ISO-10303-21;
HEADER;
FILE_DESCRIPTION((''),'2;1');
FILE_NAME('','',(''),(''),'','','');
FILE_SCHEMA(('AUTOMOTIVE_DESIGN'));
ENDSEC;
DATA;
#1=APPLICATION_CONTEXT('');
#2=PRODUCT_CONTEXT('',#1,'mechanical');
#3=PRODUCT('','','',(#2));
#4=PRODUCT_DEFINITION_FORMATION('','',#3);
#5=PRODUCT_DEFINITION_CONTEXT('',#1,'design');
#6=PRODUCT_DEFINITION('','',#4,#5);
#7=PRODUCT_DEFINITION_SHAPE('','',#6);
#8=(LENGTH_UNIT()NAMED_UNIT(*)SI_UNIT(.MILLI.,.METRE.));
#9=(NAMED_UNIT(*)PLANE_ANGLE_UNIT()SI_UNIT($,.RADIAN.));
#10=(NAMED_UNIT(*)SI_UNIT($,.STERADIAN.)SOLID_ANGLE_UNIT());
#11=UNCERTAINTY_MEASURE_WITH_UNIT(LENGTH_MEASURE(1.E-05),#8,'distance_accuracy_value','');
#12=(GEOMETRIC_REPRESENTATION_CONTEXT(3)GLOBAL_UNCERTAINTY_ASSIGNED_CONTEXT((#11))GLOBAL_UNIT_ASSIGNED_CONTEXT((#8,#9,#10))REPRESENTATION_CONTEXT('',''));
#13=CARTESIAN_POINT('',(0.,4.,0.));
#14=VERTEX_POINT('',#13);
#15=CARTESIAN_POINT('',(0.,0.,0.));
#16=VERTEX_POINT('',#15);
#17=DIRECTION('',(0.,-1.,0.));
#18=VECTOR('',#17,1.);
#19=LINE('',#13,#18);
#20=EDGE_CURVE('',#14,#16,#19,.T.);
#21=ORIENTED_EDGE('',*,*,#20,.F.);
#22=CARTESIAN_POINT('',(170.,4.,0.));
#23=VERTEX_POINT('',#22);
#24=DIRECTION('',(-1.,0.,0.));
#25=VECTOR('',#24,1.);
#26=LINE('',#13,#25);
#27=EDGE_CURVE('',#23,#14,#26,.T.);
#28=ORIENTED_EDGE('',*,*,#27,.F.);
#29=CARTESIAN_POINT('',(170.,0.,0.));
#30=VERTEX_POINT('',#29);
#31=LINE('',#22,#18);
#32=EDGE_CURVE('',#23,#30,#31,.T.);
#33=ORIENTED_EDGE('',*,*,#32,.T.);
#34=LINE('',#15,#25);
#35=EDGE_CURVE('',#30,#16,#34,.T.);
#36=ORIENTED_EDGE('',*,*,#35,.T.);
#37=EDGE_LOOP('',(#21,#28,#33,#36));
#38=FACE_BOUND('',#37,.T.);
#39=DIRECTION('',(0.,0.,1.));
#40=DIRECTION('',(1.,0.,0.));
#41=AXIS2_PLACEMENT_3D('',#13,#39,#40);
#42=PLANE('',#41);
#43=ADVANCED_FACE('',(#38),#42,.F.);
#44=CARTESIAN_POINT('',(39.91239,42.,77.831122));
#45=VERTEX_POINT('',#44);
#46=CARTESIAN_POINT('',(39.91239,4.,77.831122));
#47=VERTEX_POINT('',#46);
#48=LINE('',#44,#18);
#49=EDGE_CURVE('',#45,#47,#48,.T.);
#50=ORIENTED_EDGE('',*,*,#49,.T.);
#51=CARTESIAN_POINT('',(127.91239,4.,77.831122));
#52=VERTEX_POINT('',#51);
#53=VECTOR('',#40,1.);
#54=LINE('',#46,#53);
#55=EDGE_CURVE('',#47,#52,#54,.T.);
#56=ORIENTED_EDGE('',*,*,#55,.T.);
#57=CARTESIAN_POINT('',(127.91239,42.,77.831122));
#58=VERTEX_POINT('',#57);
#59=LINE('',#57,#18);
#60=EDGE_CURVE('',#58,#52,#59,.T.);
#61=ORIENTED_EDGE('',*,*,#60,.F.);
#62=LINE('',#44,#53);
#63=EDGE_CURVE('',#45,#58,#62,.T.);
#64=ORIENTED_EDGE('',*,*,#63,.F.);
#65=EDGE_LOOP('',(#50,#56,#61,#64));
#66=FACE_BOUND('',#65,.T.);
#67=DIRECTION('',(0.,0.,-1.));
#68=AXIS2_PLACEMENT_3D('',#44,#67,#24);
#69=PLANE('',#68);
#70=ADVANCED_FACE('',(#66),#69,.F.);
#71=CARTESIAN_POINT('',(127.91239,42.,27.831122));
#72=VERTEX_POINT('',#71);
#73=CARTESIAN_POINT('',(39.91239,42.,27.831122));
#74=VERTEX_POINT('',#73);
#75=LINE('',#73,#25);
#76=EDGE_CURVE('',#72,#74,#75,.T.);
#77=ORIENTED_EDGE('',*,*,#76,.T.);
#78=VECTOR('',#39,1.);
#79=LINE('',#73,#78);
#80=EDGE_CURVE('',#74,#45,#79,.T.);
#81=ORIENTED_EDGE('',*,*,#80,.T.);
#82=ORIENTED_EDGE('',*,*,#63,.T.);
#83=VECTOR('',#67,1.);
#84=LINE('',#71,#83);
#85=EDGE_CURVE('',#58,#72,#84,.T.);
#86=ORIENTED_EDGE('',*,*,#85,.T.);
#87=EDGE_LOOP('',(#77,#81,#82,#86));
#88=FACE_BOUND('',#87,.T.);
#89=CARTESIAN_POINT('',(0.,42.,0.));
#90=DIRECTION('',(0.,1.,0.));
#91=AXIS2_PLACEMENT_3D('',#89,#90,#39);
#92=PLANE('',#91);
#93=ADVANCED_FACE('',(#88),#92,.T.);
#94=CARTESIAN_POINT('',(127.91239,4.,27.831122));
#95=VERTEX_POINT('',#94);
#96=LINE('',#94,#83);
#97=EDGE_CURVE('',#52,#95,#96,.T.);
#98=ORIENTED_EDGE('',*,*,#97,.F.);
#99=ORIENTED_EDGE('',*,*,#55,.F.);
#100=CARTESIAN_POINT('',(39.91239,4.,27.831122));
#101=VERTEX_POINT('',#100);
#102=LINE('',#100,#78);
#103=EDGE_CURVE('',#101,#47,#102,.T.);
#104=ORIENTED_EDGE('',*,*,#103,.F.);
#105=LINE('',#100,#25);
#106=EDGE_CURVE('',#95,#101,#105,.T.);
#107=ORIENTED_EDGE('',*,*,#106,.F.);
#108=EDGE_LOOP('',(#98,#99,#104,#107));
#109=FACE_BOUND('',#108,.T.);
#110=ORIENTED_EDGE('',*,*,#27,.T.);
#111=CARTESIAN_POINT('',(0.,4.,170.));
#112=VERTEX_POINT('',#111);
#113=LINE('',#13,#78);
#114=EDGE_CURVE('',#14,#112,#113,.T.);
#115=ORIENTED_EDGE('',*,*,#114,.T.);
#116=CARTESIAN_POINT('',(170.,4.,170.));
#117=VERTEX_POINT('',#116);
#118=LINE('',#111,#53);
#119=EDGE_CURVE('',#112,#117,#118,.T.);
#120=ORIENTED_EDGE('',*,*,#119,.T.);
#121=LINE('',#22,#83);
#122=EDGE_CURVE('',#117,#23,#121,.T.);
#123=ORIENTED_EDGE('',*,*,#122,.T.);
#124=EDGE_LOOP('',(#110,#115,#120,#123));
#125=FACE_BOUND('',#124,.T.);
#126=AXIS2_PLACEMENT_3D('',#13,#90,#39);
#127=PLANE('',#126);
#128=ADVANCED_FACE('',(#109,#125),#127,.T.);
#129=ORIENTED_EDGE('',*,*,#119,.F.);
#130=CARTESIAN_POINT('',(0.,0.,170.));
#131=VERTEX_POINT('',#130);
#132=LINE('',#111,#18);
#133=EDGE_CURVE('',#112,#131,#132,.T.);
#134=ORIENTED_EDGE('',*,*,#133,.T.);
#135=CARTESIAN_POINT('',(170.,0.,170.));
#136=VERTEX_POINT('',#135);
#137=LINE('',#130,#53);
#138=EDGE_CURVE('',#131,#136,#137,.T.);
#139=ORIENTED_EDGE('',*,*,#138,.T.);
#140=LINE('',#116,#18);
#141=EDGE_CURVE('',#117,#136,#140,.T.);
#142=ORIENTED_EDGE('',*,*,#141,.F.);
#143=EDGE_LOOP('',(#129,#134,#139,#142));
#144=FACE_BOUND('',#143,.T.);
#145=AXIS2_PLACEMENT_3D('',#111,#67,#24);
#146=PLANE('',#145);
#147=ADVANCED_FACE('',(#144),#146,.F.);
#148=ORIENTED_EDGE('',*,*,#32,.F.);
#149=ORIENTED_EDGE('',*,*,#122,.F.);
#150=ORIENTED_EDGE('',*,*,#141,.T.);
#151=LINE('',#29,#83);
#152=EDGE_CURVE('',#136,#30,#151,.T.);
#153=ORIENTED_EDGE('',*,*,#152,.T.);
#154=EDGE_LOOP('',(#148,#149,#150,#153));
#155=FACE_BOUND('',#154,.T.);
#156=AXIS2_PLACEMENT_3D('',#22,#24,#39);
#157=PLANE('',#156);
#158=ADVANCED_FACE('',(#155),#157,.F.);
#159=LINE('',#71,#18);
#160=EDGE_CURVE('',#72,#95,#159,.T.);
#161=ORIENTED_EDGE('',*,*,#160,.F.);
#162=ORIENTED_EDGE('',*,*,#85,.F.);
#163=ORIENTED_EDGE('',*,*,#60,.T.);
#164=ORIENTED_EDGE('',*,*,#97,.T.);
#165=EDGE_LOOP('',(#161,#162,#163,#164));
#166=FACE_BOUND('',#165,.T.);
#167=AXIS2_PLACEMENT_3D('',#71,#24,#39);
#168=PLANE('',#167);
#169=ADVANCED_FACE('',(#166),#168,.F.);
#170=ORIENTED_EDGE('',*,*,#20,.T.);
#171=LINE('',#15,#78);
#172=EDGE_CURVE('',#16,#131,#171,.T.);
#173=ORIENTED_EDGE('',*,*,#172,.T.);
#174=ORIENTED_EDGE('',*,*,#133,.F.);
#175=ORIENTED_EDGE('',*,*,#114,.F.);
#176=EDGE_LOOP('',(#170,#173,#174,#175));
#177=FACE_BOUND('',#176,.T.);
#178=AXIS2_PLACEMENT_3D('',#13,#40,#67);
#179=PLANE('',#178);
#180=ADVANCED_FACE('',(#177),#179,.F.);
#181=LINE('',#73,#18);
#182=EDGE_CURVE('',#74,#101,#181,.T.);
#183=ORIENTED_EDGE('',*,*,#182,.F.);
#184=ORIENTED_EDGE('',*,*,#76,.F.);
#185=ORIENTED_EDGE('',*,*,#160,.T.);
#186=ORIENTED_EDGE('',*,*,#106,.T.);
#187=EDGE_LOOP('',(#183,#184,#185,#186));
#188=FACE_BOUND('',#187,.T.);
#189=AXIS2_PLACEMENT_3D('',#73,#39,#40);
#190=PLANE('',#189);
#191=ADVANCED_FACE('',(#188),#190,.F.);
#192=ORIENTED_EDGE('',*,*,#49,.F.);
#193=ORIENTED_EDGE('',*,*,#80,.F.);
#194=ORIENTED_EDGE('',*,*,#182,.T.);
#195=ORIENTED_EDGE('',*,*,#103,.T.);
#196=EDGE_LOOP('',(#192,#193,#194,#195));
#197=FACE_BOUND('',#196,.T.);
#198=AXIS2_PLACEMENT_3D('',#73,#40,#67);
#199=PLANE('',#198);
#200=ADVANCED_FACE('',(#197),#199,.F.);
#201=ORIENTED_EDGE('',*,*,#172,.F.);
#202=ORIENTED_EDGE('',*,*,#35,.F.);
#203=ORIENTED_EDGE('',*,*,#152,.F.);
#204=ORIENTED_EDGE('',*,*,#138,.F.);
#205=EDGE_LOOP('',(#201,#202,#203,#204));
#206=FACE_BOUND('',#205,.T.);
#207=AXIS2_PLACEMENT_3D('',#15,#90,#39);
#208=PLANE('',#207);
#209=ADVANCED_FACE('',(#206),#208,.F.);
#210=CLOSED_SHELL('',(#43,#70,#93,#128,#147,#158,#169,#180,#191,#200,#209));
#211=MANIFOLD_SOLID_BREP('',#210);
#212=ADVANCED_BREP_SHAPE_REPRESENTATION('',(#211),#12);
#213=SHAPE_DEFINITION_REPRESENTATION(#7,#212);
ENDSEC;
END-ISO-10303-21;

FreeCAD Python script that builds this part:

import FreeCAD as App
import Part
import Sketcher
Q = App.Units.Quantity

doc = App.newDocument("Part")
params = doc.addObject("Spreadsheet::Sheet", "Params")
for row, (alias, value) in enumerate([
    ("sketch1_width", "170 mm"),
    ("pad1_length", "4 mm"),
    ("sketch2_width", "88 mm"),
    ("sketch2_height", "50 mm"),
    ("pad2_length", "38 mm"),
], start=1):
    params.set(f"A{row}", alias)
    params.set(f"B{row}", "=" + value)
    params.setAlias(f"B{row}", alias)

body = doc.addObject("PartDesign::Body", "Body")

sketch1 = doc.addObject("Sketcher::SketchObject", "Sketch")
body.addObject(sketch1)
sketch1.AttachmentSupport = (doc.XZ_Plane, [""])
sketch1.MapMode = "FlatFace"
sketch1.addGeometry([
    Part.LineSegment(App.Vector(0, 0, 0), App.Vector(0, 170, 0)),
    Part.LineSegment(App.Vector(0, 170, 0), App.Vector(170, 170, 0)),
    Part.LineSegment(App.Vector(170, 170, 0), App.Vector(170, 0, 0)),
    Part.LineSegment(App.Vector(170, 0, 0), App.Vector(0, 0, 0)),
], False)
sketch1.addConstraint([
    Sketcher.Constraint("Coincident", 0, 2, 1, 1),
    Sketcher.Constraint("Coincident", 1, 2, 2, 1),
    Sketcher.Constraint("Coincident", 2, 2, 3, 1),
    Sketcher.Constraint("Coincident", 3, 2, 0, 1),
    Sketcher.Constraint("Vertical", 0),
    Sketcher.Constraint("Horizontal", 1),
    Sketcher.Constraint("Vertical", 2),
    Sketcher.Constraint("Horizontal", 3),
    Sketcher.Constraint("Coincident", 3, 2, -1, 1),
    Sketcher.Constraint("Equal", 3, 0),
    Sketcher.Constraint("DistanceX", 1, 1, 1, 2, Q("170 mm")),
])
sketch1.setExpression("Constraints[10]", "Params.sketch1_width")
pad1 = doc.addObject("PartDesign::Pad", "Pad")
body.addObject(pad1)
pad1.Profile = sketch1
pad1.setExpression("Length", "Params.pad1_length")
pad1.Reversed = True

sketch2 = doc.addObject("Sketcher::SketchObject", "Sketch001")
body.addObject(sketch2)
sketch2.AttachmentSupport = (doc.XZ_Plane, [""])
sketch2.MapMode = "FlatFace"
sketch2.AttachmentOffset = App.Placement(App.Vector(0, 0, -4), App.Rotation())
sketch2.addGeometry([
    Part.LineSegment(App.Vector(40, 28, 0), App.Vector(40, 78, 0)),
    Part.LineSegment(App.Vector(40, 78, 0), App.Vector(128, 78, 0)),
    Part.LineSegment(App.Vector(128, 78, 0), App.Vector(128, 28, 0)),
    Part.LineSegment(App.Vector(128, 28, 0), App.Vector(40, 28, 0)),
], False)
sketch2.addConstraint([
    Sketcher.Constraint("Coincident", 0, 2, 1, 1),
    Sketcher.Constraint("Coincident", 1, 2, 2, 1),
    Sketcher.Constraint("Coincident", 2, 2, 3, 1),
    Sketcher.Constraint("Coincident", 3, 2, 0, 1),
    Sketcher.Constraint("Vertical", 0),
    Sketcher.Constraint("Horizontal", 1),
    Sketcher.Constraint("Vertical", 2),
    Sketcher.Constraint("Horizontal", 3),
    Sketcher.Constraint("DistanceX", 1, 1, 1, 2, Q("88 mm")),
    Sketcher.Constraint("DistanceY", 0, 1, 0, 2, Q("50 mm")),
    Sketcher.Constraint("DistanceX", -1, 1, 0, 2, Q("39.91239 mm")),
    Sketcher.Constraint("DistanceY", -1, 1, 0, 2, Q("77.831122 mm")),
])
sketch2.setExpression("Constraints[8]", "Params.sketch2_width")
sketch2.setExpression("Constraints[9]", "Params.sketch2_height")
pad2 = doc.addObject("PartDesign::Pad", "Pad001")
body.addObject(pad2)
pad2.Profile = sketch2
pad2.setExpression("Length", "Params.pad2_length")
pad2.Reversed = True

doc.recompute()
